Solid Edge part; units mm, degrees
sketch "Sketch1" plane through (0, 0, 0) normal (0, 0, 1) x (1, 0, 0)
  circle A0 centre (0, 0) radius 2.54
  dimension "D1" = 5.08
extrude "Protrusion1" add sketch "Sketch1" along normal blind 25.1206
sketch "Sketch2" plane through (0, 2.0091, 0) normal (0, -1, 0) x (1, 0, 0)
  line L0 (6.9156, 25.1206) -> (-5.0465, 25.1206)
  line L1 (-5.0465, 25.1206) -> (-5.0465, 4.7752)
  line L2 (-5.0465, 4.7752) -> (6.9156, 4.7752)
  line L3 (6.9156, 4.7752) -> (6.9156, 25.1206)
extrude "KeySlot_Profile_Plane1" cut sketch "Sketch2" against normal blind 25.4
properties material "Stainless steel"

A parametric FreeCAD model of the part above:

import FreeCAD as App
import Part
import Sketcher
from FreeCAD import Vector
Q = App.Units.Quantity


def add_polygon(sketch, points):
    """Adds a closed chain of lines whose ends are joined by coincident constraints."""
    first, n = sketch.GeometryCount, len(points)
    for a, b in zip(points, points[1:] + points[:1]):
        sketch.addGeometry(Part.LineSegment(App.Vector(*a, 0), App.Vector(*b, 0)), False)
    for i in range(n):
        sketch.addConstraint(Sketcher.Constraint("Coincident", first + i, 2, first + (i + 1) % n, 1))

doc = App.newDocument("Part")
body = doc.addObject("PartDesign::Body", "Body")

sketch1 = body.newObject("Sketcher::SketchObject", "Sketch")
sketch1.AttachmentSupport = (doc.getObject("XY_Plane"), [""])
sketch1.MapMode = "FlatFace"
sketch1.addGeometry(Part.Circle(Vector(0, 0, 0), Vector(0, 0, 1), 2.54), False)
sketch1.addConstraint([
    Sketcher.Constraint("Coincident", 0, 3, -1, 1),
    Sketcher.Constraint("Diameter", 0, Q("0.2 in")),
])
pad1 = body.newObject("PartDesign::Pad", "Pad")
pad1.Profile = sketch1
pad1.Length = Q("0.989 in")

sketch2 = body.newObject("Sketcher::SketchObject", "Sketch001")
sketch2.AttachmentSupport = (doc.getObject("XZ_Plane"), [""])
sketch2.MapMode = "FlatFace"
sketch2.AttachmentOffset = App.Placement(Vector(0, 0, -0.0790984 * 25.4), App.Rotation())
add_polygon(sketch2, [(6.9156, 4.7752), (6.9156, 25.1206), (-5.0465, 25.1206), (-5.0465, 4.7752)])
sketch2.addConstraint([
    Sketcher.Constraint("Vertical", 0),
    Sketcher.Constraint("Horizontal", 1),
    Sketcher.Constraint("Vertical", 2),
    Sketcher.Constraint("Horizontal", 3),
    Sketcher.Constraint("DistanceY", 0, 1, 0, 2, Q("0.801 in")),
    Sketcher.Constraint("DistanceY", -1, 1, 0, 2, Q("0.989 in")),
    Sketcher.Constraint("DistanceX", 1, 2, 1, 1, 11.962),
    Sketcher.Constraint("DistanceX", -1, 1, 0, 2, 6.9156),
])
pocket1 = body.newObject("PartDesign::Pocket", "Pocket")
pocket1.Profile = sketch2
pocket1.Length = Q("1 in")

doc.recompute()
